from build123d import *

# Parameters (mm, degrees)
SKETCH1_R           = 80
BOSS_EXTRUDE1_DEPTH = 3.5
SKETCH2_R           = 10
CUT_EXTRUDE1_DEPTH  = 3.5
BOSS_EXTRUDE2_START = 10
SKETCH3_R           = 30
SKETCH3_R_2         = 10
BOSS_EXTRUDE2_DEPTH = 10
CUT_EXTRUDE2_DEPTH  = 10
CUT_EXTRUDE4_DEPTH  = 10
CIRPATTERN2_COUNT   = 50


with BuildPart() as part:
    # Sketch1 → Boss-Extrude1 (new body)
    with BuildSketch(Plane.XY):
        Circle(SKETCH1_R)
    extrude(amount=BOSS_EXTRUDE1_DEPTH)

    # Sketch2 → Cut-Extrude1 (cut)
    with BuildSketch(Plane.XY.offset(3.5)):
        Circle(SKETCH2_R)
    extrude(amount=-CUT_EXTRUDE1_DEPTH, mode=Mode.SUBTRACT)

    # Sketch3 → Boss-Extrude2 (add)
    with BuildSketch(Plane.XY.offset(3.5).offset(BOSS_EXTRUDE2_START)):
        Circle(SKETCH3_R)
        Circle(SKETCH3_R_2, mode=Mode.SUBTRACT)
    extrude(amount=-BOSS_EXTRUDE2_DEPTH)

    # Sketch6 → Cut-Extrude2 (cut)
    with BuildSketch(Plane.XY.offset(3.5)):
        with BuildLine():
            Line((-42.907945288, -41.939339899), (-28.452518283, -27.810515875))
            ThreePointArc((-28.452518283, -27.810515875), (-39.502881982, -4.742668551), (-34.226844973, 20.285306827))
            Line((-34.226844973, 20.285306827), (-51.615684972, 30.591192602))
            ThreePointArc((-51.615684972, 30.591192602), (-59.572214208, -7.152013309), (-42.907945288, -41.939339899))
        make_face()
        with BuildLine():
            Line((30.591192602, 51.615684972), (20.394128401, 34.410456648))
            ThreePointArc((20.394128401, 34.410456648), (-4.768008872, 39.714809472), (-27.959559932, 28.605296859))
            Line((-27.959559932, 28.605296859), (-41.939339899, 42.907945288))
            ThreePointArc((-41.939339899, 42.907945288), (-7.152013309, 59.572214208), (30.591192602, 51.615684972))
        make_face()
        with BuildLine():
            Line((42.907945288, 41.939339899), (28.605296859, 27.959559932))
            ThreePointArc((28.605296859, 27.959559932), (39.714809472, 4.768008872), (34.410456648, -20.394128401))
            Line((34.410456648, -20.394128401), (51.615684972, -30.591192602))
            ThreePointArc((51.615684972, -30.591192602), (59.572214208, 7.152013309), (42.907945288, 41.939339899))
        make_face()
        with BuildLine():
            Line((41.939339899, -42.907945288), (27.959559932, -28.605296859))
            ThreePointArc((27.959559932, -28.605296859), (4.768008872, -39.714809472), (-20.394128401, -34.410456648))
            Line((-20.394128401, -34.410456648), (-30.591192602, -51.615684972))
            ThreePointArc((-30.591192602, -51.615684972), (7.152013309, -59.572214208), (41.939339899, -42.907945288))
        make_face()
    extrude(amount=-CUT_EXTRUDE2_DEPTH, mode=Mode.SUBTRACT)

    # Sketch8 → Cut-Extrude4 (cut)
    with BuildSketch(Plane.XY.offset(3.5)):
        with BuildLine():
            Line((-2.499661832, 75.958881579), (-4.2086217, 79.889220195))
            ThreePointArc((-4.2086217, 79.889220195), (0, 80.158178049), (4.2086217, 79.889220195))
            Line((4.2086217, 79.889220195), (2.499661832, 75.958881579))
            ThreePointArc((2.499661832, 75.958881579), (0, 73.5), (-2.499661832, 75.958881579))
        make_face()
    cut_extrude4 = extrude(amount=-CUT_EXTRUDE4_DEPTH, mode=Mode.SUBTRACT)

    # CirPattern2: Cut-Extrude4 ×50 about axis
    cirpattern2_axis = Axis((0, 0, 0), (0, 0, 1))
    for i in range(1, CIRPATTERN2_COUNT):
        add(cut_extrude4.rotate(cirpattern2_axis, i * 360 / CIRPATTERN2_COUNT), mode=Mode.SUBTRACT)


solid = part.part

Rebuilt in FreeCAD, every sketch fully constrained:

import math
import FreeCAD as App
import Part
import Sketcher

V = App.Vector
Q = App.Units.Quantity

doc = App.newDocument("Part")
body = doc.addObject("PartDesign::Body", "Body")

sketch1 = doc.addObject("Sketcher::SketchObject", "Sketch")
body.addObject(sketch1)
sketch1.AttachmentSupport = (doc.XY_Plane, [""])
sketch1.MapMode = "FlatFace"
sketch1.addGeometry(Part.Circle(V(0, 0, 0), V(0, 0, 1), 80), False)
sketch1.addConstraint(Sketcher.Constraint("Coincident", 0, 3, -1, 1))
sketch1.addConstraint(Sketcher.Constraint("Diameter", 0, Q("160 mm")))
pad1 = doc.addObject("PartDesign::Pad", "Pad")
body.addObject(pad1)
pad1.Profile = sketch1
pad1.Length = 3.5

sketch2 = doc.addObject("Sketcher::SketchObject", "Sketch001")
body.addObject(sketch2)
sketch2.AttachmentSupport = (doc.XY_Plane, [""])
sketch2.MapMode = "FlatFace"
sketch2.AttachmentOffset = App.Placement(V(0, 0, 3.5), App.Rotation())
sketch2.addGeometry(Part.Circle(V(0, 0, 0), V(0, 0, 1), 10), False)
sketch2.addConstraint(Sketcher.Constraint("Coincident", 0, 3, -1, 1))
sketch2.addConstraint(Sketcher.Constraint("Diameter", 0, Q("20 mm")))
pocket1 = doc.addObject("PartDesign::Pocket", "Pocket")
body.addObject(pocket1)
pocket1.Profile = sketch2
pocket1.Length = 3.5

sketch3 = doc.addObject("Sketcher::SketchObject", "Sketch002")
body.addObject(sketch3)
sketch3.AttachmentSupport = (doc.XY_Plane, [""])
sketch3.MapMode = "FlatFace"
sketch3.AttachmentOffset = App.Placement(V(0, 0, 13.5), App.Rotation())
sketch3.addGeometry(Part.Circle(V(0, 0, 0), V(0, 0, 1), 30), False)
sketch3.addGeometry(Part.Circle(V(0, 0, 0), V(0, 0, 1), 10), False)
sketch3.addConstraint(Sketcher.Constraint("Coincident", 0, 3, -1, 1))
sketch3.addConstraint(Sketcher.Constraint("Coincident", 1, 3, -1, 1))
sketch3.addConstraint(Sketcher.Constraint("Diameter", 0, Q("60 mm")))
sketch3.addConstraint(Sketcher.Constraint("Diameter", 1, Q("20 mm")))
pad2 = doc.addObject("PartDesign::Pad", "Pad001")
body.addObject(pad2)
pad2.Profile = sketch3
pad2.Length = 10
pad2.Reversed = True

sketch4 = doc.addObject("Sketcher::SketchObject", "Sketch003")
body.addObject(sketch4)
sketch4.AttachmentSupport = (doc.XY_Plane, [""])
sketch4.MapMode = "FlatFace"
sketch4.AttachmentOffset = App.Placement(V(0, 0, 3.5), App.Rotation())
sketch4.addGeometry(Part.LineSegment(V(-43, -42, 0), V(-28, -28, 0)), False)
sketch4.addGeometry(Part.ArcOfCircle(Part.Circle(V(0, 0, 0), V(0, 0, 1), 40), math.radians(149), math.radians(224)), False)
sketch4.addGeometry(Part.LineSegment(V(-34, 20, 0), V(-52, 31, 0)), False)
sketch4.addGeometry(Part.ArcOfCircle(Part.Circle(V(0, 0, 0), V(0, 0, 1), 60), math.radians(149), math.radians(224)), False)
sketch4.addGeometry(Part.LineSegment(V(20, 34, 0), V(31, 52, 0)), False)
sketch4.addGeometry(Part.ArcOfCircle(Part.Circle(V(0, 0, 0), V(0, 0, 1), 60), math.radians(59), math.radians(134)), False)
sketch4.addGeometry(Part.LineSegment(V(-42, 43, 0), V(-28, 29, 0)), False)
sketch4.addGeometry(Part.ArcOfCircle(Part.Circle(V(0, 0, 0), V(0, 0, 1), 40), math.radians(59), math.radians(134)), False)
sketch4.addGeometry(Part.LineSegment(V(43, 42, 0), V(29, 28, 0)), False)
sketch4.addGeometry(Part.ArcOfCircle(Part.Circle(V(0, 0, 0), V(0, 0, 1), 40), math.radians(-31), math.radians(44)), False)
sketch4.addGeometry(Part.LineSegment(V(34, -20, 0), V(52, -31, 0)), False)
sketch4.addGeometry(Part.ArcOfCircle(Part.Circle(V(0, 0, 0), V(0, 0, 1), 60), math.radians(-31), math.radians(44)), False)
sketch4.addGeometry(Part.LineSegment(V(42, -43, 0), V(28, -29, 0)), False)
sketch4.addGeometry(Part.ArcOfCircle(Part.Circle(V(0, 0, 0), V(0, 0, 1), 40), math.radians(-121), math.radians(-46)), False)
sketch4.addGeometry(Part.LineSegment(V(-20, -34, 0), V(-31, -52, 0)), False)
sketch4.addGeometry(Part.ArcOfCircle(Part.Circle(V(0, 0, 0), V(0, 0, 1), 60), math.radians(-121), math.radians(-46)), False)
sketch4.addConstraint(Sketcher.Constraint("Coincident", 0, 2, 1, 2))
sketch4.addConstraint(Sketcher.Constraint("Coincident", 1, 1, 2, 1))
sketch4.addConstraint(Sketcher.Constraint("Coincident", 2, 2, 3, 1))
sketch4.addConstraint(Sketcher.Constraint("Coincident", 3, 2, 0, 1))
sketch4.addConstraint(Sketcher.Constraint("Coincident", 4, 2, 5, 1))
sketch4.addConstraint(Sketcher.Constraint("Coincident", 5, 2, 6, 1))
sketch4.addConstraint(Sketcher.Constraint("Coincident", 6, 2, 7, 2))
sketch4.addConstraint(Sketcher.Constraint("Coincident", 7, 1, 4, 1))
sketch4.addConstraint(Sketcher.Constraint("Coincident", 8, 2, 9, 2))
sketch4.addConstraint(Sketcher.Constraint("Coincident", 9, 1, 10, 1))
sketch4.addConstraint(Sketcher.Constraint("Coincident", 10, 2, 11, 1))
sketch4.addConstraint(Sketcher.Constraint("Coincident", 11, 2, 8, 1))
sketch4.addConstraint(Sketcher.Constraint("Coincident", 12, 2, 13, 2))
sketch4.addConstraint(Sketcher.Constraint("Coincident", 13, 1, 14, 1))
sketch4.addConstraint(Sketcher.Constraint("Coincident", 14, 2, 15, 1))
sketch4.addConstraint(Sketcher.Constraint("Coincident", 15, 2, 12, 1))
sketch4.addConstraint(Sketcher.Constraint("Coincident", 1, 3, -1, 1))
sketch4.addConstraint(Sketcher.Constraint("Coincident", 3, 3, -1, 1))
sketch4.addConstraint(Sketcher.Constraint("Coincident", 5, 3, -1, 1))
sketch4.addConstraint(Sketcher.Constraint("Coincident", 7, 3, -1, 1))
sketch4.addConstraint(Sketcher.Constraint("Coincident", 9, 3, -1, 1))
sketch4.addConstraint(Sketcher.Constraint("Coincident", 11, 3, -1, 1))
sketch4.addConstraint(Sketcher.Constraint("Coincident", 13, 3, -1, 1))
sketch4.addConstraint(Sketcher.Constraint("Coincident", 15, 3, -1, 1))
sketch4.addConstraint(Sketcher.Constraint("Equal", 3, 5))
sketch4.addConstraint(Sketcher.Constraint("Equal", 7, 9))
sketch4.addConstraint(Sketcher.Constraint("Equal", 5, 11))
sketch4.addConstraint(Sketcher.Constraint("Equal", 9, 13))
sketch4.addConstraint(Sketcher.Constraint("Equal", 11, 15))
sketch4.addConstraint(Sketcher.Constraint("Perpendicular", 2, 4))
sketch4.addConstraint(Sketcher.Constraint("Perpendicular", 6, 8))
sketch4.addConstraint(Sketcher.Constraint("Perpendicular", 4, 10))
sketch4.addConstraint(Sketcher.Constraint("Perpendicular", 8, 12))
sketch4.addConstraint(Sketcher.Constraint("Perpendicular", 10, 14))
sketch4.addConstraint(Sketcher.Constraint("Radius", 3, Q("60 mm")))
sketch4.addConstraint(Sketcher.Constraint("Radius", 7, Q("40 mm")))
sketch4.addConstraint(Sketcher.Constraint("Radius", 1, Q("39.786563 mm")))
sketch4.addConstraint(Sketcher.Constraint("DistanceX", 0, 2, -1, 1, Q("28.452518 mm")))
sketch4.addConstraint(Sketcher.Constraint("DistanceY", 3, 2, -1, 1, Q("41.93934 mm")))
sketch4.addConstraint(Sketcher.Constraint("DistanceX", 5, 2, -1, 1, Q("41.93934 mm")))
sketch4.addConstraint(Sketcher.Constraint("DistanceX", 6, 2, -1, 1, Q("27.95956 mm")))
sketch4.addConstraint(Sketcher.Constraint("DistanceX", -1, 1, 7, 1, Q("20.394128 mm")))
sketch4.addConstraint(Sketcher.Constraint("DistanceY", -1, 1, 8, 2, Q("27.95956 mm")))
sketch4.addConstraint(Sketcher.Constraint("DistanceY", 9, 1, -1, 1, Q("20.394128 mm")))
sketch4.addConstraint(Sketcher.Constraint("DistanceX", -1, 1, 12, 2, Q("27.95956 mm")))
sketch4.addConstraint(Sketcher.Constraint("DistanceX", 13, 1, -1, 1, Q("20.394128 mm")))
sketch4.addConstraint(Sketcher.Constraint("DistanceX", 2, 2, 1, 1, Q("17.38884 mm")))
sketch4.addConstraint(Sketcher.Constraint("DistanceY", 1, 1, 5, 2, Q("22.622638 mm")))
pocket2 = doc.addObject("PartDesign::Pocket", "Pocket001")
body.addObject(pocket2)
pocket2.Profile = sketch4
pocket2.Length = 10

sketch5 = doc.addObject("Sketcher::SketchObject", "Sketch004")
body.addObject(sketch5)
sketch5.AttachmentSupport = (doc.XY_Plane, [""])
sketch5.MapMode = "FlatFace"
sketch5.AttachmentOffset = App.Placement(V(0, 0, 3.5), App.Rotation())
sketch5.addGeometry(Part.LineSegment(V(-4.2, 79.9, 0), V(-2.5, 76, 0)), False)
sketch5.addGeometry(Part.ArcOfCircle(Part.Circle(V(0, 76, 0), V(0, 0, 1), 2.5), math.radians(-179), math.radians(-1)), False)
sketch5.addGeometry(Part.LineSegment(V(2.5, 76, 0), V(4.2, 79.9, 0)), False)
sketch5.addGeometry(Part.ArcOfCircle(Part.Circle(V(0, 47.1, 0), V(0, 0, 1), 33.1), math.radians(82.69), math.radians(97.31)), False)
sketch5.addConstraint(Sketcher.Constraint("Coincident", 0, 2, 1, 1))
sketch5.addConstraint(Sketcher.Constraint("Coincident", 1, 2, 2, 1))
sketch5.addConstraint(Sketcher.Constraint("Coincident", 2, 2, 3, 1))
sketch5.addConstraint(Sketcher.Constraint("Coincident", 3, 2, 0, 1))
sketch5.addConstraint(Sketcher.Constraint("Symmetric", 0, 2, 1, 2, -2))
sketch5.addConstraint(Sketcher.Constraint("Symmetric", 2, 2, 3, 2, -2))
sketch5.addConstraint(Sketcher.Constraint("Radius", 1, Q("2.5 mm")))
sketch5.addConstraint(Sketcher.Constraint("DistanceY", -1, 1, 1, 3, Q("76 mm")))
sketch5.addConstraint(Sketcher.Constraint("Angle", 0, Q("-66.5 deg")))
sketch5.addConstraint(Sketcher.Constraint("Radius", 3, Q("33.062494 mm")))
sketch5.addConstraint(Sketcher.Constraint("DistanceX", 0, 2, -1, 1, Q("2.499662 mm")))
sketch5.addConstraint(Sketcher.Constraint("DistanceX", -1, 1, 2, 2, Q("4.208622 mm")))
pocket3 = doc.addObject("PartDesign::Pocket", "Pocket002")
body.addObject(pocket3)
pocket3.Profile = sketch5
pocket3.Length = 10
doc.recompute()

polarpattern = doc.addObject("PartDesign::PolarPattern", "PolarPattern")
body.addObject(polarpattern)
polarpattern.Originals = [pocket3]
polarpattern.Axis = (doc.Z_Axis, [""])
polarpattern.Angle = 360
polarpattern.Occurrences = 50
body.Tip = polarpattern

doc.recompute()
